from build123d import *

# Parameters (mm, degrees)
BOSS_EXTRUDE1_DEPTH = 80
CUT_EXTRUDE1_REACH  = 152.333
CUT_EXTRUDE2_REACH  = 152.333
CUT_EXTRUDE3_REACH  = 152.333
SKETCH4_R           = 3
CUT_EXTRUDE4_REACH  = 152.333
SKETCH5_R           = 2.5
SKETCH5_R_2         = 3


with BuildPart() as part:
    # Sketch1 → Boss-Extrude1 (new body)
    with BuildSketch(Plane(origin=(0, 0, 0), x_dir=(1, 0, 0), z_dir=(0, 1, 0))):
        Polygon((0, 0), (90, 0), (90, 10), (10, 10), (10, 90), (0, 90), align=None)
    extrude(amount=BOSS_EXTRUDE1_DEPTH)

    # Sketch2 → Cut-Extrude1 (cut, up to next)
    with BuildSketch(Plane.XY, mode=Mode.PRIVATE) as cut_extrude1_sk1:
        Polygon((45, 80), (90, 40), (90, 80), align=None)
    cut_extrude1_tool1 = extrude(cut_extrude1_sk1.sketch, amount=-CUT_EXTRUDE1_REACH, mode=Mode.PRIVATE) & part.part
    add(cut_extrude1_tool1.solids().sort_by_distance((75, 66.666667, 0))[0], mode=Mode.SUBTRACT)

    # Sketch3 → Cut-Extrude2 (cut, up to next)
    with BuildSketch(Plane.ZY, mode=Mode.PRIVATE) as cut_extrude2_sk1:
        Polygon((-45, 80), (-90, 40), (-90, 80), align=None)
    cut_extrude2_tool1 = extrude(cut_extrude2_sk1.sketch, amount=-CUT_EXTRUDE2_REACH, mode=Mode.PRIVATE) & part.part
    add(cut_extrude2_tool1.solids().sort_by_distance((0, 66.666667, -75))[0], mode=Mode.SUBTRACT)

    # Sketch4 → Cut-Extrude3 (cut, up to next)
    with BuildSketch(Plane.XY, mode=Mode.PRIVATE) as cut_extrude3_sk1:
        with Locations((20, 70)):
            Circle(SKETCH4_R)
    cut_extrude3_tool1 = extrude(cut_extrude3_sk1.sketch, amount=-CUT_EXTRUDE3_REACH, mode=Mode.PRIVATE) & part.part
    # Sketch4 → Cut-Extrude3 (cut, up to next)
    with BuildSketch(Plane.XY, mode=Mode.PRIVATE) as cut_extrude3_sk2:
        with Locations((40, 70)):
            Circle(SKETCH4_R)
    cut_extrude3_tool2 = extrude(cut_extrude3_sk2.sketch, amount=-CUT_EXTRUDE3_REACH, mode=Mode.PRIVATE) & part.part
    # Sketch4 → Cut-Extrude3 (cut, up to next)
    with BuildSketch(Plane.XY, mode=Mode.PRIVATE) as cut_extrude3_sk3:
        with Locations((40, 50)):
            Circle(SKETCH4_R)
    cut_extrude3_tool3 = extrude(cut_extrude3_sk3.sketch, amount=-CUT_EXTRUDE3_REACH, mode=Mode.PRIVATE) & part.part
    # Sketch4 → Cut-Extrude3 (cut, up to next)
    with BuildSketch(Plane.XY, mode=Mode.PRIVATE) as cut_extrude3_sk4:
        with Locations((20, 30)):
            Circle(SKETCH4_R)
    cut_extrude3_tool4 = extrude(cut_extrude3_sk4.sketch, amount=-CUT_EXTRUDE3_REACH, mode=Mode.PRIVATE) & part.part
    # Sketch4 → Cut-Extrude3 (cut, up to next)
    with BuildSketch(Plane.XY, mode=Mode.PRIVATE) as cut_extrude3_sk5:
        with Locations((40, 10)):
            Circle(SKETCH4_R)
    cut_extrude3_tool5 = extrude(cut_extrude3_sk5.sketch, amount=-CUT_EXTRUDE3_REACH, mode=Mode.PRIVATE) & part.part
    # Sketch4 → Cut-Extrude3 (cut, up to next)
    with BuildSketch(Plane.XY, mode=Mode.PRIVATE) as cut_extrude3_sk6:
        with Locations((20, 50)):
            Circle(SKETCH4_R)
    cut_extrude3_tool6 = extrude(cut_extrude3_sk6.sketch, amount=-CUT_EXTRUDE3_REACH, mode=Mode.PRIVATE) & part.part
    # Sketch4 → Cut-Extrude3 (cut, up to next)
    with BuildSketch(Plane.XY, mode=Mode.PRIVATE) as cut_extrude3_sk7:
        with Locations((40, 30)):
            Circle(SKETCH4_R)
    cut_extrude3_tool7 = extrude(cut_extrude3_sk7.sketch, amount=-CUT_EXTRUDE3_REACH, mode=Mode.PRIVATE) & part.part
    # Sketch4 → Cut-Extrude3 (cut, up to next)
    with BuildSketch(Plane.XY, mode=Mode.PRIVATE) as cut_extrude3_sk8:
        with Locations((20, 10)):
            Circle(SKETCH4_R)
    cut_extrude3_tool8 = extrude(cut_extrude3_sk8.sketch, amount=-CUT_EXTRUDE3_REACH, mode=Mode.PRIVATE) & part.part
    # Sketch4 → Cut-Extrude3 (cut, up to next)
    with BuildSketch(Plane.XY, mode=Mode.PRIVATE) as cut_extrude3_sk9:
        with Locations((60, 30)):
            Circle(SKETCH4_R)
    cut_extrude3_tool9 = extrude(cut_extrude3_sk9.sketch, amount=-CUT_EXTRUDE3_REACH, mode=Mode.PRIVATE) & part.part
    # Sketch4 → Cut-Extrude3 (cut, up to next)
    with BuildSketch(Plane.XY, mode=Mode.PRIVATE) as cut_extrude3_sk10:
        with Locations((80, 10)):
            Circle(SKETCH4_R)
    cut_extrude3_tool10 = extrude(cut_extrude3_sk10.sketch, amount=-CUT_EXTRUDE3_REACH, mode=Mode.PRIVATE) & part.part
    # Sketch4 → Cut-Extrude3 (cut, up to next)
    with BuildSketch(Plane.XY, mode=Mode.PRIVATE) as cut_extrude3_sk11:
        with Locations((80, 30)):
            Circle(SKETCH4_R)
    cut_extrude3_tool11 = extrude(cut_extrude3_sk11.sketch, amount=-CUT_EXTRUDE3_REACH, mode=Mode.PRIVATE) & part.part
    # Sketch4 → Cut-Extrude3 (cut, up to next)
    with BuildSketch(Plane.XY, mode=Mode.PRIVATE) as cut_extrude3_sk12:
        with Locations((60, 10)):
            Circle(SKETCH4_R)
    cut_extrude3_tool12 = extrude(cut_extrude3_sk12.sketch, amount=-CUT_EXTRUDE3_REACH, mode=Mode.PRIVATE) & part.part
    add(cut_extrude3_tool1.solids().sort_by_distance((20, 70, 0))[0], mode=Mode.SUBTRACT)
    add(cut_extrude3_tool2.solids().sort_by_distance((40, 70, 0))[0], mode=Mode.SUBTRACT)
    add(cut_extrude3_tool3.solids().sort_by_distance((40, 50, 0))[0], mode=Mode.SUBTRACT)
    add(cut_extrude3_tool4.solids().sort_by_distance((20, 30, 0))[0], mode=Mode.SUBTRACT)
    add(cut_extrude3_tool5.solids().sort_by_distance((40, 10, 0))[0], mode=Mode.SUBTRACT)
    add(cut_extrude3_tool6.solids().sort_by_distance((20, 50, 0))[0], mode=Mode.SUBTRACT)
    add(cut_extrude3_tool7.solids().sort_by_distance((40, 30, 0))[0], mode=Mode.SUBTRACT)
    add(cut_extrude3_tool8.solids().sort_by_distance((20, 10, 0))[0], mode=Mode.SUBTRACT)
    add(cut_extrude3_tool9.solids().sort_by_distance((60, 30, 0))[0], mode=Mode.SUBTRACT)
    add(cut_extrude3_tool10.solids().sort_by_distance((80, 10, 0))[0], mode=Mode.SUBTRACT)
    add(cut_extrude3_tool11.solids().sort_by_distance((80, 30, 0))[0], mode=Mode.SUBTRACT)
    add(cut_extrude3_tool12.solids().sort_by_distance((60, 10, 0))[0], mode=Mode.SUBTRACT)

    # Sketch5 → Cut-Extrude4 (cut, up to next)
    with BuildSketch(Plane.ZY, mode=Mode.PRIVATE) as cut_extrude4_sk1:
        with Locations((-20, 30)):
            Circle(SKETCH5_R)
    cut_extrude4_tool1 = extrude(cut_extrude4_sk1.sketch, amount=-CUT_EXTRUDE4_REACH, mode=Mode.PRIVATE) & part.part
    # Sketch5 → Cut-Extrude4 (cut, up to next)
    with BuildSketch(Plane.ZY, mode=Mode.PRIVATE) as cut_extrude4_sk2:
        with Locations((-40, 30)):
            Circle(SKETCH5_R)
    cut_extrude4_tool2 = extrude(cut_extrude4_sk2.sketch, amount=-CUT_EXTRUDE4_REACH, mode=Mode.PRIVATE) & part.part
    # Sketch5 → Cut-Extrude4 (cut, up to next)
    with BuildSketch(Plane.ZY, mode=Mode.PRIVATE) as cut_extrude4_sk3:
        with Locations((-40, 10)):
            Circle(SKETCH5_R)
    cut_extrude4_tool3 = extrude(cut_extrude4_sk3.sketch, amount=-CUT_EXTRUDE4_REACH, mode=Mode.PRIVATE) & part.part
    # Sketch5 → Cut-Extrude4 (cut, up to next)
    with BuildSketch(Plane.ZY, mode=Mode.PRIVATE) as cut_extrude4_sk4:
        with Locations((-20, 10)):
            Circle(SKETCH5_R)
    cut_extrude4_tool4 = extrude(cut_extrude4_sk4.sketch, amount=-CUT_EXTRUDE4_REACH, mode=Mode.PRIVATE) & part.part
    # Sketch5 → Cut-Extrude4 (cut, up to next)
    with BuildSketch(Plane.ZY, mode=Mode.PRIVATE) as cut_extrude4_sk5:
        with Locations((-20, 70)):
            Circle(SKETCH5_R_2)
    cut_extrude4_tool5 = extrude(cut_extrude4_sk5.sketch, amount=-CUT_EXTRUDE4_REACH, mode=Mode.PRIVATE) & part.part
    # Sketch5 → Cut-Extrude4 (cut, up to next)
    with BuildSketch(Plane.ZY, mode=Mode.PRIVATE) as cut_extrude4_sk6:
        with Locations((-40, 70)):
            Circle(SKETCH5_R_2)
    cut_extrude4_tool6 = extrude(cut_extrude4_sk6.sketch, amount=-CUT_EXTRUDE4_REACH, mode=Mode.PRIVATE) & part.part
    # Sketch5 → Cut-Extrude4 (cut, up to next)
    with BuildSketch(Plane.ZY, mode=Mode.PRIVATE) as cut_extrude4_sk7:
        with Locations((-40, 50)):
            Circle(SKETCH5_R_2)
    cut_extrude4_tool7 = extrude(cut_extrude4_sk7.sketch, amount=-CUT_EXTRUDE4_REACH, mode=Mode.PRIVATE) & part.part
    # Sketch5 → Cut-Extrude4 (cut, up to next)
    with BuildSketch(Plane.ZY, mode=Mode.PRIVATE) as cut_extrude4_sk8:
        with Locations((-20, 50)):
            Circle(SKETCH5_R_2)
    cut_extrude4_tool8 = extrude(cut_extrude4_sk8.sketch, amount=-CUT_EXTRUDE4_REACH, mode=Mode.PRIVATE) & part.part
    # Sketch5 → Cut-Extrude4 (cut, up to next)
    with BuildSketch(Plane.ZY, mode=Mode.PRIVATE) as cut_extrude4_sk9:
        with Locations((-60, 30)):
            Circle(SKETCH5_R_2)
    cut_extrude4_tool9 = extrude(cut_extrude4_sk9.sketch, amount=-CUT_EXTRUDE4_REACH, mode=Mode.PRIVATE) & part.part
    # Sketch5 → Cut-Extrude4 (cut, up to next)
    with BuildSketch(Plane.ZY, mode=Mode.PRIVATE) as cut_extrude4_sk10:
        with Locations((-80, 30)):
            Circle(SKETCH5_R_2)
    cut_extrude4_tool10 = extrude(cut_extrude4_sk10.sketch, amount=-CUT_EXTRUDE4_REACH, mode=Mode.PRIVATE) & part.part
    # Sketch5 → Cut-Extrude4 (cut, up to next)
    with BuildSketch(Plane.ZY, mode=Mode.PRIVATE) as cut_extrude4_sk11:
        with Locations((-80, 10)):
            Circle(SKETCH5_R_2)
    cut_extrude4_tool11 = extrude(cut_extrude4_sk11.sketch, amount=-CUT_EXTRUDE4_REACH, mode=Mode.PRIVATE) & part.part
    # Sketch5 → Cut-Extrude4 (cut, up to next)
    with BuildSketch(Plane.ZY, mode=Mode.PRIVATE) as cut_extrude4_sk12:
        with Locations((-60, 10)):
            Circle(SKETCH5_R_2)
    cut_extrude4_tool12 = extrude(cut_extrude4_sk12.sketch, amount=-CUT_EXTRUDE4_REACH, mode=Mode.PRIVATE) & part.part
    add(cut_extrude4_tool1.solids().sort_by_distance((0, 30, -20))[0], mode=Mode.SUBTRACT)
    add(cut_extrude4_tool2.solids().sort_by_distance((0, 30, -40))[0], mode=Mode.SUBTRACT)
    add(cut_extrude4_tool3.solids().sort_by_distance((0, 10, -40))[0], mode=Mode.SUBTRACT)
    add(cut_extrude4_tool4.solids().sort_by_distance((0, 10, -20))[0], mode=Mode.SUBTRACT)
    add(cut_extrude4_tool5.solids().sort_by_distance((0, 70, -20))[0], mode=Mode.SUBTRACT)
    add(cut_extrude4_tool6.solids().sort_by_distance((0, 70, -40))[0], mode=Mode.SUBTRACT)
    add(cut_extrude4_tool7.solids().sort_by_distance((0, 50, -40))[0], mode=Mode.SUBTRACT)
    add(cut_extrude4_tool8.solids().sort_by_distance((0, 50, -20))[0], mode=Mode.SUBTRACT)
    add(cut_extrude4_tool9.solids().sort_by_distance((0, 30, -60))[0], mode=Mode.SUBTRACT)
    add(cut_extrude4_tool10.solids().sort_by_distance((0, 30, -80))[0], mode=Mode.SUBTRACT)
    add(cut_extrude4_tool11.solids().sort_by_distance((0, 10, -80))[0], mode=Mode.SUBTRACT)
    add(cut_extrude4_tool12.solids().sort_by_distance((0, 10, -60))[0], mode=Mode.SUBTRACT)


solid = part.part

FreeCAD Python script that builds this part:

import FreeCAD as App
import Part
import Sketcher
from FreeCAD import Vector
Q = App.Units.Quantity


def add_polygon(sketch, points):
    """Adds a closed chain of lines whose ends are joined by coincident constraints."""
    first, n = sketch.GeometryCount, len(points)
    for a, b in zip(points, points[1:] + points[:1]):
        sketch.addGeometry(Part.LineSegment(App.Vector(*a, 0), App.Vector(*b, 0)), False)
    for i in range(n):
        sketch.addConstraint(Sketcher.Constraint("Coincident", first + i, 2, first + (i + 1) % n, 1))

doc = App.newDocument("Part")
body = doc.addObject("PartDesign::Body", "Body")

sketch1 = body.newObject("Sketcher::SketchObject", "Sketch")
sketch1.AttachmentSupport = (doc.getObject("XZ_Plane"), [""])
sketch1.MapMode = "FlatFace"
add_polygon(sketch1, [(0, 0), (90, 0), (90, -10), (10, -10), (10, -90), (0, -90)])
sketch1.addConstraint([
    Sketcher.Constraint("Horizontal", 0),
    Sketcher.Constraint("Vertical", 1),
    Sketcher.Constraint("Horizontal", 2),
    Sketcher.Constraint("Vertical", 3),
    Sketcher.Constraint("Horizontal", 4),
    Sketcher.Constraint("Vertical", 5),
    Sketcher.Constraint("Coincident", 5, 2, -1, 1),
    Sketcher.Constraint("Equal", 4, 1),
    Sketcher.Constraint("Equal", 2, 3),
    Sketcher.Constraint("DistanceX", 0, 1, 0, 2, Q("90 mm")),
    Sketcher.Constraint("DistanceX", 2, 2, 2, 1, Q("80 mm")),
])
pad1 = body.newObject("PartDesign::Pad", "Pad")
pad1.Profile = sketch1
pad1.Length = 80
pad1.Reversed = True

sketch2 = body.newObject("Sketcher::SketchObject", "Sketch001")
sketch2.AttachmentSupport = (doc.getObject("XY_Plane"), [""])
sketch2.MapMode = "FlatFace"
add_polygon(sketch2, [(45, 80), (90, 40), (90, 80)])
sketch2.addConstraint([
    Sketcher.Constraint("Vertical", 1),
    Sketcher.Constraint("Horizontal", 2),
    Sketcher.Constraint("DistanceX", 2, 2, 2, 1, Q("45 mm")),
    Sketcher.Constraint("DistanceY", 1, 1, 1, 2, Q("40 mm")),
    Sketcher.Constraint("DistanceX", -1, 1, 0, 2, Q("90 mm")),
    Sketcher.Constraint("DistanceY", -1, 1, 0, 2, Q("40 mm")),
])
pocket1 = body.newObject("PartDesign::Pocket", "Pocket")
pocket1.Profile = sketch2
pocket1.Type = "UpToFirst"

sketch3 = body.newObject("Sketcher::SketchObject", "Sketch002")
sketch3.AttachmentSupport = (doc.getObject("YZ_Plane"), [""])
sketch3.MapMode = "FlatFace"
add_polygon(sketch3, [(40, -90), (80, -45), (80, -90)])
sketch3.addConstraint([
    Sketcher.Constraint("Vertical", 1),
    Sketcher.Constraint("Horizontal", 2),
    Sketcher.Constraint("DistanceX", 2, 2, 2, 1, Q("40 mm")),
    Sketcher.Constraint("DistanceY", 1, 2, 1, 1, Q("45 mm")),
    Sketcher.Constraint("DistanceX", -1, 1, 0, 2, Q("80 mm")),
    Sketcher.Constraint("DistanceY", 0, 2, -1, 1, Q("45 mm")),
])
pocket2 = body.newObject("PartDesign::Pocket", "Pocket001")
pocket2.Profile = sketch3
pocket2.Type = "UpToFirst"
pocket2.Reversed = True

sketch4 = body.newObject("Sketcher::SketchObject", "Sketch003")
sketch4.AttachmentSupport = (doc.getObject("XY_Plane"), [""])
sketch4.MapMode = "FlatFace"
sketch4.addGeometry(Part.Circle(Vector(20, 70, 0), Vector(0, 0, 1), 3), False)
sketch4.addConstraint([
    Sketcher.Constraint("Diameter", 0, Q("6 mm")),
    Sketcher.Constraint("DistanceX", -1, 1, 0, 3, Q("20 mm")),
    Sketcher.Constraint("DistanceY", -1, 1, 0, 3, Q("70 mm")),
])
pocket3 = body.newObject("PartDesign::Pocket", "Pocket002")
pocket3.Profile = sketch4
pocket3.Type = "UpToFirst"

sketch5 = body.newObject("Sketcher::SketchObject", "Sketch004")
sketch5.AttachmentSupport = (doc.getObject("XY_Plane"), [""])
sketch5.MapMode = "FlatFace"
sketch5.addGeometry(Part.Circle(Vector(40, 70, 0), Vector(0, 0, 1), 3), False)
sketch5.addConstraint([
    Sketcher.Constraint("Diameter", 0, Q("6 mm")),
    Sketcher.Constraint("DistanceX", -1, 1, 0, 3, Q("40 mm")),
    Sketcher.Constraint("DistanceY", -1, 1, 0, 3, Q("70 mm")),
])
pocket4 = body.newObject("PartDesign::Pocket", "Pocket003")
pocket4.Profile = sketch5
pocket4.Type = "UpToFirst"

sketch6 = body.newObject("Sketcher::SketchObject", "Sketch005")
sketch6.AttachmentSupport = (doc.getObject("XY_Plane"), [""])
sketch6.MapMode = "FlatFace"
sketch6.addGeometry(Part.Circle(Vector(40, 50, 0), Vector(0, 0, 1), 3), False)
sketch6.addConstraint([
    Sketcher.Constraint("Diameter", 0, Q("6 mm")),
    Sketcher.Constraint("DistanceX", -1, 1, 0, 3, Q("40 mm")),
    Sketcher.Constraint("DistanceY", -1, 1, 0, 3, Q("50 mm")),
])
pocket5 = body.newObject("PartDesign::Pocket", "Pocket004")
pocket5.Profile = sketch6
pocket5.Type = "UpToFirst"

sketch7 = body.newObject("Sketcher::SketchObject", "Sketch006")
sketch7.AttachmentSupport = (doc.getObject("XY_Plane"), [""])
sketch7.MapMode = "FlatFace"
sketch7.addGeometry(Part.Circle(Vector(20, 30, 0), Vector(0, 0, 1), 3), False)
sketch7.addConstraint([
    Sketcher.Constraint("Diameter", 0, Q("6 mm")),
    Sketcher.Constraint("DistanceX", -1, 1, 0, 3, Q("20 mm")),
    Sketcher.Constraint("DistanceY", -1, 1, 0, 3, Q("30 mm")),
])
pocket6 = body.newObject("PartDesign::Pocket", "Pocket005")
pocket6.Profile = sketch7
pocket6.Type = "UpToFirst"

sketch8 = body.newObject("Sketcher::SketchObject", "Sketch007")
sketch8.AttachmentSupport = (doc.getObject("XY_Plane"), [""])
sketch8.MapMode = "FlatFace"
sketch8.addGeometry(Part.Circle(Vector(40, 10, 0), Vector(0, 0, 1), 3), False)
sketch8.addConstraint([
    Sketcher.Constraint("Diameter", 0, Q("6 mm")),
    Sketcher.Constraint("DistanceX", -1, 1, 0, 3, Q("40 mm")),
    Sketcher.Constraint("DistanceY", -1, 1, 0, 3, Q("10 mm")),
])
pocket7 = body.newObject("PartDesign::Pocket", "Pocket006")
pocket7.Profile = sketch8
pocket7.Type = "UpToFirst"

sketch9 = body.newObject("Sketcher::SketchObject", "Sketch008")
sketch9.AttachmentSupport = (doc.getObject("XY_Plane"), [""])
sketch9.MapMode = "FlatFace"
sketch9.addGeometry(Part.Circle(Vector(20, 50, 0), Vector(0, 0, 1), 3), False)
sketch9.addConstraint([
    Sketcher.Constraint("Diameter", 0, Q("6 mm")),
    Sketcher.Constraint("DistanceX", -1, 1, 0, 3, Q("20 mm")),
    Sketcher.Constraint("DistanceY", -1, 1, 0, 3, Q("50 mm")),
])
pocket8 = body.newObject("PartDesign::Pocket", "Pocket007")
pocket8.Profile = sketch9
pocket8.Type = "UpToFirst"

sketch10 = body.newObject("Sketcher::SketchObject", "Sketch009")
sketch10.AttachmentSupport = (doc.getObject("XY_Plane"), [""])
sketch10.MapMode = "FlatFace"
sketch10.addGeometry(Part.Circle(Vector(40, 30, 0), Vector(0, 0, 1), 3), False)
sketch10.addConstraint([
    Sketcher.Constraint("Diameter", 0, Q("6 mm")),
    Sketcher.Constraint("DistanceX", -1, 1, 0, 3, Q("40 mm")),
    Sketcher.Constraint("DistanceY", -1, 1, 0, 3, Q("30 mm")),
])
pocket9 = body.newObject("PartDesign::Pocket", "Pocket008")
pocket9.Profile = sketch10
pocket9.Type = "UpToFirst"

sketch11 = body.newObject("Sketcher::SketchObject", "Sketch010")
sketch11.AttachmentSupport = (doc.getObject("XY_Plane"), [""])
sketch11.MapMode = "FlatFace"
sketch11.addGeometry(Part.Circle(Vector(20, 10, 0), Vector(0, 0, 1), 3), False)
sketch11.addConstraint([
    Sketcher.Constraint("Diameter", 0, Q("6 mm")),
    Sketcher.Constraint("DistanceX", -1, 1, 0, 3, Q("20 mm")),
    Sketcher.Constraint("DistanceY", -1, 1, 0, 3, Q("10 mm")),
])
pocket10 = body.newObject("PartDesign::Pocket", "Pocket009")
pocket10.Profile = sketch11
pocket10.Type = "UpToFirst"

sketch12 = body.newObject("Sketcher::SketchObject", "Sketch011")
sketch12.AttachmentSupport = (doc.getObject("XY_Plane"), [""])
sketch12.MapMode = "FlatFace"
sketch12.addGeometry(Part.Circle(Vector(60, 30, 0), Vector(0, 0, 1), 3), False)
sketch12.addConstraint([
    Sketcher.Constraint("Diameter", 0, Q("6 mm")),
    Sketcher.Constraint("DistanceX", -1, 1, 0, 3, Q("60 mm")),
    Sketcher.Constraint("DistanceY", -1, 1, 0, 3, Q("30 mm")),
])
pocket11 = body.newObject("PartDesign::Pocket", "Pocket010")
pocket11.Profile = sketch12
pocket11.Type = "UpToFirst"

sketch13 = body.newObject("Sketcher::SketchObject", "Sketch012")
sketch13.AttachmentSupport = (doc.getObject("XY_Plane"), [""])
sketch13.MapMode = "FlatFace"
sketch13.addGeometry(Part.Circle(Vector(80, 10, 0), Vector(0, 0, 1), 3), False)
sketch13.addConstraint([
    Sketcher.Constraint("Diameter", 0, Q("6 mm")),
    Sketcher.Constraint("DistanceX", -1, 1, 0, 3, Q("80 mm")),
    Sketcher.Constraint("DistanceY", -1, 1, 0, 3, Q("10 mm")),
])
pocket12 = body.newObject("PartDesign::Pocket", "Pocket011")
pocket12.Profile = sketch13
pocket12.Type = "UpToFirst"

sketch14 = body.newObject("Sketcher::SketchObject", "Sketch013")
sketch14.AttachmentSupport = (doc.getObject("XY_Plane"), [""])
sketch14.MapMode = "FlatFace"
sketch14.addGeometry(Part.Circle(Vector(80, 30, 0), Vector(0, 0, 1), 3), False)
sketch14.addConstraint([
    Sketcher.Constraint("Diameter", 0, Q("6 mm")),
    Sketcher.Constraint("DistanceX", -1, 1, 0, 3, Q("80 mm")),
    Sketcher.Constraint("DistanceY", -1, 1, 0, 3, Q("30 mm")),
])
pocket13 = body.newObject("PartDesign::Pocket", "Pocket012")
pocket13.Profile = sketch14
pocket13.Type = "UpToFirst"

sketch15 = body.newObject("Sketcher::SketchObject", "Sketch014")
sketch15.AttachmentSupport = (doc.getObject("XY_Plane"), [""])
sketch15.MapMode = "FlatFace"
sketch15.addGeometry(Part.Circle(Vector(60, 10, 0), Vector(0, 0, 1), 3), False)
sketch15.addConstraint([
    Sketcher.Constraint("Diameter", 0, Q("6 mm")),
    Sketcher.Constraint("DistanceX", -1, 1, 0, 3, Q("60 mm")),
    Sketcher.Constraint("DistanceY", -1, 1, 0, 3, Q("10 mm")),
])
pocket14 = body.newObject("PartDesign::Pocket", "Pocket013")
pocket14.Profile = sketch15
pocket14.Type = "UpToFirst"

sketch16 = body.newObject("Sketcher::SketchObject", "Sketch015")
sketch16.AttachmentSupport = (doc.getObject("YZ_Plane"), [""])
sketch16.MapMode = "FlatFace"
sketch16.addGeometry(Part.Circle(Vector(30, -20, 0), Vector(0, 0, 1), 2.5), False)
sketch16.addConstraint([
    Sketcher.Constraint("Diameter", 0, Q("5 mm")),
    Sketcher.Constraint("DistanceX", -1, 1, 0, 3, Q("30 mm")),
    Sketcher.Constraint("DistanceY", 0, 3, -1, 1, Q("20 mm")),
])
pocket15 = body.newObject("PartDesign::Pocket", "Pocket014")
pocket15.Profile = sketch16
pocket15.Type = "UpToFirst"
pocket15.Reversed = True

sketch17 = body.newObject("Sketcher::SketchObject", "Sketch016")
sketch17.AttachmentSupport = (doc.getObject("YZ_Plane"), [""])
sketch17.MapMode = "FlatFace"
sketch17.addGeometry(Part.Circle(Vector(30, -40, 0), Vector(0, 0, 1), 2.5), False)
sketch17.addConstraint([
    Sketcher.Constraint("Diameter", 0, Q("5 mm")),
    Sketcher.Constraint("DistanceX", -1, 1, 0, 3, Q("30 mm")),
    Sketcher.Constraint("DistanceY", 0, 3, -1, 1, Q("40 mm")),
])
pocket16 = body.newObject("PartDesign::Pocket", "Pocket015")
pocket16.Profile = sketch17
pocket16.Type = "UpToFirst"
pocket16.Reversed = True

sketch18 = body.newObject("Sketcher::SketchObject", "Sketch017")
sketch18.AttachmentSupport = (doc.getObject("YZ_Plane"), [""])
sketch18.MapMode = "FlatFace"
sketch18.addGeometry(Part.Circle(Vector(10, -40, 0), Vector(0, 0, 1), 2.5), False)
sketch18.addConstraint([
    Sketcher.Constraint("Diameter", 0, Q("5 mm")),
    Sketcher.Constraint("DistanceX", -1, 1, 0, 3, Q("10 mm")),
    Sketcher.Constraint("DistanceY", 0, 3, -1, 1, Q("40 mm")),
])
pocket17 = body.newObject("PartDesign::Pocket", "Pocket016")
pocket17.Profile = sketch18
pocket17.Type = "UpToFirst"
pocket17.Reversed = True

sketch19 = body.newObject("Sketcher::SketchObject", "Sketch018")
sketch19.AttachmentSupport = (doc.getObject("YZ_Plane"), [""])
sketch19.MapMode = "FlatFace"
sketch19.addGeometry(Part.Circle(Vector(10, -20, 0), Vector(0, 0, 1), 2.5), False)
sketch19.addConstraint([
    Sketcher.Constraint("Diameter", 0, Q("5 mm")),
    Sketcher.Constraint("DistanceX", -1, 1, 0, 3, Q("10 mm")),
    Sketcher.Constraint("DistanceY", 0, 3, -1, 1, Q("20 mm")),
])
pocket18 = body.newObject("PartDesign::Pocket", "Pocket017")
pocket18.Profile = sketch19
pocket18.Type = "UpToFirst"
pocket18.Reversed = True

sketch20 = body.newObject("Sketcher::SketchObject", "Sketch019")
sketch20.AttachmentSupport = (doc.getObject("YZ_Plane"), [""])
sketch20.MapMode = "FlatFace"
sketch20.addGeometry(Part.Circle(Vector(70, -20, 0), Vector(0, 0, 1), 3), False)
sketch20.addConstraint([
    Sketcher.Constraint("Diameter", 0, Q("6 mm")),
    Sketcher.Constraint("DistanceX", -1, 1, 0, 3, Q("70 mm")),
    Sketcher.Constraint("DistanceY", 0, 3, -1, 1, Q("20 mm")),
])
pocket19 = body.newObject("PartDesign::Pocket", "Pocket018")
pocket19.Profile = sketch20
pocket19.Type = "UpToFirst"
pocket19.Reversed = True

sketch21 = body.newObject("Sketcher::SketchObject", "Sketch020")
sketch21.AttachmentSupport = (doc.getObject("YZ_Plane"), [""])
sketch21.MapMode = "FlatFace"
sketch21.addGeometry(Part.Circle(Vector(70, -40, 0), Vector(0, 0, 1), 3), False)
sketch21.addConstraint([
    Sketcher.Constraint("Diameter", 0, Q("6 mm")),
    Sketcher.Constraint("DistanceX", -1, 1, 0, 3, Q("70 mm")),
    Sketcher.Constraint("DistanceY", 0, 3, -1, 1, Q("40 mm")),
])
pocket20 = body.newObject("PartDesign::Pocket", "Pocket019")
pocket20.Profile = sketch21
pocket20.Type = "UpToFirst"
pocket20.Reversed = True

sketch22 = body.newObject("Sketcher::SketchObject", "Sketch021")
sketch22.AttachmentSupport = (doc.getObject("YZ_Plane"), [""])
sketch22.MapMode = "FlatFace"
sketch22.addGeometry(Part.Circle(Vector(50, -40, 0), Vector(0, 0, 1), 3), False)
sketch22.addConstraint([
    Sketcher.Constraint("Diameter", 0, Q("6 mm")),
    Sketcher.Constraint("DistanceX", -1, 1, 0, 3, Q("50 mm")),
    Sketcher.Constraint("DistanceY", 0, 3, -1, 1, Q("40 mm")),
])
pocket21 = body.newObject("PartDesign::Pocket", "Pocket020")
pocket21.Profile = sketch22
pocket21.Type = "UpToFirst"
pocket21.Reversed = True

sketch23 = body.newObject("Sketcher::SketchObject", "Sketch022")
sketch23.AttachmentSupport = (doc.getObject("YZ_Plane"), [""])
sketch23.MapMode = "FlatFace"
sketch23.addGeometry(Part.Circle(Vector(50, -20, 0), Vector(0, 0, 1), 3), False)
sketch23.addConstraint([
    Sketcher.Constraint("Diameter", 0, Q("6 mm")),
    Sketcher.Constraint("DistanceX", -1, 1, 0, 3, Q("50 mm")),
    Sketcher.Constraint("DistanceY", 0, 3, -1, 1, Q("20 mm")),
])
pocket22 = body.newObject("PartDesign::Pocket", "Pocket021")
pocket22.Profile = sketch23
pocket22.Type = "UpToFirst"
pocket22.Reversed = True

sketch24 = body.newObject("Sketcher::SketchObject", "Sketch023")
sketch24.AttachmentSupport = (doc.getObject("YZ_Plane"), [""])
sketch24.MapMode = "FlatFace"
sketch24.addGeometry(Part.Circle(Vector(30, -60, 0), Vector(0, 0, 1), 3), False)
sketch24.addConstraint([
    Sketcher.Constraint("Diameter", 0, Q("6 mm")),
    Sketcher.Constraint("DistanceX", -1, 1, 0, 3, Q("30 mm")),
    Sketcher.Constraint("DistanceY", 0, 3, -1, 1, Q("60 mm")),
])
pocket23 = body.newObject("PartDesign::Pocket", "Pocket022")
pocket23.Profile = sketch24
pocket23.Type = "UpToFirst"
pocket23.Reversed = True

sketch25 = body.newObject("Sketcher::SketchObject", "Sketch024")
sketch25.AttachmentSupport = (doc.getObject("YZ_Plane"), [""])
sketch25.MapMode = "FlatFace"
sketch25.addGeometry(Part.Circle(Vector(30, -80, 0), Vector(0, 0, 1), 3), False)
sketch25.addConstraint([
    Sketcher.Constraint("Diameter", 0, Q("6 mm")),
    Sketcher.Constraint("DistanceX", -1, 1, 0, 3, Q("30 mm")),
    Sketcher.Constraint("DistanceY", 0, 3, -1, 1, Q("80 mm")),
])
pocket24 = body.newObject("PartDesign::Pocket", "Pocket023")
pocket24.Profile = sketch25
pocket24.Type = "UpToFirst"
pocket24.Reversed = True

sketch26 = body.newObject("Sketcher::SketchObject", "Sketch025")
sketch26.AttachmentSupport = (doc.getObject("YZ_Plane"), [""])
sketch26.MapMode = "FlatFace"
sketch26.addGeometry(Part.Circle(Vector(10, -80, 0), Vector(0, 0, 1), 3), False)
sketch26.addConstraint([
    Sketcher.Constraint("Diameter", 0, Q("6 mm")),
    Sketcher.Constraint("DistanceX", -1, 1, 0, 3, Q("10 mm")),
    Sketcher.Constraint("DistanceY", 0, 3, -1, 1, Q("80 mm")),
])
pocket25 = body.newObject("PartDesign::Pocket", "Pocket024")
pocket25.Profile = sketch26
pocket25.Type = "UpToFirst"
pocket25.Reversed = True

sketch27 = body.newObject("Sketcher::SketchObject", "Sketch026")
sketch27.AttachmentSupport = (doc.getObject("YZ_Plane"), [""])
sketch27.MapMode = "FlatFace"
sketch27.addGeometry(Part.Circle(Vector(10, -60, 0), Vector(0, 0, 1), 3), False)
sketch27.addConstraint([
    Sketcher.Constraint("Diameter", 0, Q("6 mm")),
    Sketcher.Constraint("DistanceX", -1, 1, 0, 3, Q("10 mm")),
    Sketcher.Constraint("DistanceY", 0, 3, -1, 1, Q("60 mm")),
])
pocket26 = body.newObject("PartDesign::Pocket", "Pocket025")
pocket26.Profile = sketch27
pocket26.Type = "UpToFirst"
pocket26.Reversed = True

doc.recompute()
